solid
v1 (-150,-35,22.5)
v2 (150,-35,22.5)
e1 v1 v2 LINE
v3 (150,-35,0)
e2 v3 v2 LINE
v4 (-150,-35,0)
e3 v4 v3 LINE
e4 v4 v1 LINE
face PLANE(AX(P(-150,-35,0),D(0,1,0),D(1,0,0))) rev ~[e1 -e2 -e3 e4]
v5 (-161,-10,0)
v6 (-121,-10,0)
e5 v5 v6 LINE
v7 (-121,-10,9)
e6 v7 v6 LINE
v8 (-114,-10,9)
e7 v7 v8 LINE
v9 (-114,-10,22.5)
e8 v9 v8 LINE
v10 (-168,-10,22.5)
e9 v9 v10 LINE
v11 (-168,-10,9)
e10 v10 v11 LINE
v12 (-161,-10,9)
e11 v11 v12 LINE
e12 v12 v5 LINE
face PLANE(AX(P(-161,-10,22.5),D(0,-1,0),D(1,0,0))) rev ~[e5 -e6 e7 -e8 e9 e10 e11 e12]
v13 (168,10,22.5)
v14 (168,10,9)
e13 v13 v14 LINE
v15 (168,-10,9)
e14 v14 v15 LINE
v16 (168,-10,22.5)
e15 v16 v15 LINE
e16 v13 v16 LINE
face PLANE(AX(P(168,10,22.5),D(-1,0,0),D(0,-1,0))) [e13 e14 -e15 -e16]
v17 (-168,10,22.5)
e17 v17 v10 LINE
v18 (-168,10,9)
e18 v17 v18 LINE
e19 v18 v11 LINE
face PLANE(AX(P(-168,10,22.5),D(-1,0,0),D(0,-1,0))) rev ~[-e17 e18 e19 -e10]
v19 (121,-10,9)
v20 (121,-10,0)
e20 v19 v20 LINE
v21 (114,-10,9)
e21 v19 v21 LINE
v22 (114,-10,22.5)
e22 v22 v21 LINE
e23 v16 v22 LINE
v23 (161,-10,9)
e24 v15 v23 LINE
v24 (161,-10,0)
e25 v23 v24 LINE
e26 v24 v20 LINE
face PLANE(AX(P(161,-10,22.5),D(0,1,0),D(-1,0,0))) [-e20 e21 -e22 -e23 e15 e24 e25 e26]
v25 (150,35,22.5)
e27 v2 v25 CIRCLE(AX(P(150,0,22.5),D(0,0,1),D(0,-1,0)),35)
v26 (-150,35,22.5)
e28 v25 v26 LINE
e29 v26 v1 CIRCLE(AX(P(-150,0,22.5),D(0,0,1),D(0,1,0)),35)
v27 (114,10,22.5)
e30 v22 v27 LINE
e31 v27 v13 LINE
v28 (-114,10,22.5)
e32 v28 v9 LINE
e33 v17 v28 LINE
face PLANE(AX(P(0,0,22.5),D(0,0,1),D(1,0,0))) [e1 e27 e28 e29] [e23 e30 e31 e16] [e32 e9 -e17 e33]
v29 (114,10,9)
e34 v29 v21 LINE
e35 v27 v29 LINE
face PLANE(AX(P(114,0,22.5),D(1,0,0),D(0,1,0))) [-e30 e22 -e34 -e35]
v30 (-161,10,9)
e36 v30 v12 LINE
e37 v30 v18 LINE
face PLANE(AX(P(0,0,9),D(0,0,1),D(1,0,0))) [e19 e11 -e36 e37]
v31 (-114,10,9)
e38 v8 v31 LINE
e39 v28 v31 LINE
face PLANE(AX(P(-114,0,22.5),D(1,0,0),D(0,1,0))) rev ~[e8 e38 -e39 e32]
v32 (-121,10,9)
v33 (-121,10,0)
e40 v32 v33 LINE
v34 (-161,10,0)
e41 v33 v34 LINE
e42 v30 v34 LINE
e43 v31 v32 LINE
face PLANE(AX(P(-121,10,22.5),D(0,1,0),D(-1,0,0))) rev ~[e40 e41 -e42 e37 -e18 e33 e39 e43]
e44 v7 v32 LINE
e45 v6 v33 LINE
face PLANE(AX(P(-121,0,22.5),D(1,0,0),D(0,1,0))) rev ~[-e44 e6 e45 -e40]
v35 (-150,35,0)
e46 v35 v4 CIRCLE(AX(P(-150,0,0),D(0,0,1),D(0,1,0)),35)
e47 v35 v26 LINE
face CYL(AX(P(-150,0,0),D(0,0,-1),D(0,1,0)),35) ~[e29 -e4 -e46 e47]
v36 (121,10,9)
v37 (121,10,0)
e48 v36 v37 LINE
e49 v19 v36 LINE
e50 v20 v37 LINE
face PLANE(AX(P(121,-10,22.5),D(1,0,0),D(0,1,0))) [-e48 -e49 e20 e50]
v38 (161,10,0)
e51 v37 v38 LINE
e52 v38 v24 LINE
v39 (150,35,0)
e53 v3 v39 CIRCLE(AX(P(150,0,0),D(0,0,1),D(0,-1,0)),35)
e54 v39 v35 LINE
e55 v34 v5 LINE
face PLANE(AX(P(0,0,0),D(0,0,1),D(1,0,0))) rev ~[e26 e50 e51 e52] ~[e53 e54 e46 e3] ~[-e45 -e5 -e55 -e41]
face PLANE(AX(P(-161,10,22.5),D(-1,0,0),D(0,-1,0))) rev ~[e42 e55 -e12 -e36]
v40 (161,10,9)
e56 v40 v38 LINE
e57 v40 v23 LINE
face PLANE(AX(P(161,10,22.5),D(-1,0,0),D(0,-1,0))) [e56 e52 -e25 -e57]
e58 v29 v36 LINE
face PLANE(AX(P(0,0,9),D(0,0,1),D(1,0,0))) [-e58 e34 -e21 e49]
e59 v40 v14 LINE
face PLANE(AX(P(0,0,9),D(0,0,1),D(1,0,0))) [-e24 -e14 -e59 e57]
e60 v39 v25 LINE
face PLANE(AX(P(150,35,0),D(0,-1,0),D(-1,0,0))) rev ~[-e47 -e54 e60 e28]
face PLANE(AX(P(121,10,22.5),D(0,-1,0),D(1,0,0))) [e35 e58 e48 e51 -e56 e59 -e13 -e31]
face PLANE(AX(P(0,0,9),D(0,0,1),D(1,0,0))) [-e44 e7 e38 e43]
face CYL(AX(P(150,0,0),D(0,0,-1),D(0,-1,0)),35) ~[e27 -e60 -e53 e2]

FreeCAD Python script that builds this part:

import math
import FreeCAD as App
import Part
import Sketcher
Q = App.Units.Quantity


def add_polygon(sketch, points):
    """Adds a closed chain of lines whose ends are joined by coincident constraints."""
    first, n = sketch.GeometryCount, len(points)
    for a, b in zip(points, points[1:] + points[:1]):
        sketch.addGeometry(Part.LineSegment(App.Vector(*a, 0), App.Vector(*b, 0)), False)
    for i in range(n):
        sketch.addConstraint(Sketcher.Constraint("Coincident", first + i, 2, first + (i + 1) % n, 1))

doc = App.newDocument("Part")
body = doc.addObject("PartDesign::Body", "Body")

# Sketch on XY plane
sketch1 = body.newObject("Sketcher::SketchObject", "Sketch")
sketch1.AttachmentSupport = (doc.getObject("XY_Plane"), [""])
sketch1.MapMode = "FlatFace"
sketch1.addGeometry([
    Part.ArcOfCircle(Part.Circle(App.Vector(-150, 0, 0), App.Vector(0, 0, 1), 35), math.radians(90), math.radians(270)),
    Part.LineSegment(App.Vector(-150, -35, 0), App.Vector(150, -35, 0)),
    Part.ArcOfCircle(Part.Circle(App.Vector(150, 0, 0), App.Vector(0, 0, 1), 35), math.radians(-90), math.radians(90)),
    Part.LineSegment(App.Vector(150, 35, 0), App.Vector(-150, 35, 0)),
], False)
sketch1.addConstraint([
    Sketcher.Constraint("Tangent", 0, 2, 1, 1),
    Sketcher.Constraint("Tangent", 1, 2, 2, 1),
    Sketcher.Constraint("Tangent", 2, 2, 3, 1),
    Sketcher.Constraint("Tangent", 3, 2, 0, 1),
    Sketcher.Constraint("Horizontal", 1),
    Sketcher.Constraint("Horizontal", 3),
    Sketcher.Constraint("Symmetric", 0, 3, 2, 3, -1, 1),
    Sketcher.Constraint("Radius", 0, Q("35 mm")),
    Sketcher.Constraint("DistanceX", 0, 3, -1, 1, Q("150 mm")),
])
pad1 = body.newObject("PartDesign::Pad", "Pad")
pad1.Profile = sketch1
pad1.Length = 22.5

# Sketch on XY plane
sketch2 = body.newObject("Sketcher::SketchObject", "Sketch001")
sketch2.AttachmentSupport = (doc.getObject("XY_Plane"), [""])
sketch2.MapMode = "FlatFace"
sketch2.AttachmentOffset = App.Placement(App.Vector(0, 0, 22.5), App.Rotation())
add_polygon(sketch2, [(161, 10), (121, 10), (121, -10), (161, -10)])  # lines 0-3
add_polygon(sketch2, [(-121, -10), (-121, 10), (-161, 10), (-161, -10)])  # lines 4-7
sketch2.addConstraint([
    Sketcher.Constraint("Horizontal", 0),
    Sketcher.Constraint("Vertical", 1),
    Sketcher.Constraint("Horizontal", 2),
    Sketcher.Constraint("Vertical", 3),
    Sketcher.Constraint("Vertical", 4),
    Sketcher.Constraint("Horizontal", 5),
    Sketcher.Constraint("Vertical", 6),
    Sketcher.Constraint("Horizontal", 7),
    Sketcher.Constraint("Symmetric", 1, 2, 4, 2, -1, 1),
    Sketcher.Constraint("Symmetric", 3, 2, 6, 2, -1, 1),
    Sketcher.Constraint("Horizontal", 3, 2, 4, 2),
    Sketcher.Constraint("DistanceX", 0, 2, 0, 1, Q("40 mm")),
    Sketcher.Constraint("DistanceY", 1, 2, 1, 1, Q("20 mm")),
    Sketcher.Constraint("DistanceX", -1, 1, 0, 2, Q("121 mm")),
])
pocket1 = body.newObject("PartDesign::Pocket", "Pocket")
pocket1.Profile = sketch2
pocket1.Type = "ThroughAll"

# Sketch on XY plane
sketch3 = body.newObject("Sketcher::SketchObject", "Sketch002")
sketch3.AttachmentSupport = (doc.getObject("XY_Plane"), [""])
sketch3.MapMode = "FlatFace"
sketch3.AttachmentOffset = App.Placement(App.Vector(0, 0, 22.5), App.Rotation())
add_polygon(sketch3, [(121, 10), (114, 10), (114, -10), (121, -10)])  # lines 0-3
add_polygon(sketch3, [(168, 10), (161, 10), (161, -10), (168, -10)])  # lines 4-7
add_polygon(sketch3, [(-114, 10), (-121, 10), (-121, -10), (-114, -10)])  # lines 8-11
add_polygon(sketch3, [(-161, -10), (-161, 10), (-168, 10), (-168, -10)])  # lines 12-15
sketch3.addConstraint([
    Sketcher.Constraint("Horizontal", 0),
    Sketcher.Constraint("Vertical", 1),
    Sketcher.Constraint("Horizontal", 2),
    Sketcher.Constraint("Vertical", 3),
    Sketcher.Constraint("Horizontal", 4),
    Sketcher.Constraint("Vertical", 5),
    Sketcher.Constraint("Horizontal", 6),
    Sketcher.Constraint("Vertical", 7),
    Sketcher.Constraint("Horizontal", 8),
    Sketcher.Constraint("Vertical", 9),
    Sketcher.Constraint("Horizontal", 10),
    Sketcher.Constraint("Vertical", 11),
    Sketcher.Constraint("Vertical", 12),
    Sketcher.Constraint("Horizontal", 13),
    Sketcher.Constraint("Vertical", 14),
    Sketcher.Constraint("Horizontal", 15),
    Sketcher.Constraint("Symmetric", 2, 2, 8, 2, -1, 1),
    Sketcher.Constraint("Symmetric", 0, 2, 10, 2, -1, 1),
    Sketcher.Constraint("Symmetric", 5, 2, 12, 2, -1, 1),
    Sketcher.Constraint("Symmetric", 7, 2, 14, 2, -1, 1),
    Sketcher.Constraint("Horizontal", 3, 2, 4, 2),
    Sketcher.Constraint("Horizontal", 2, 2, 5, 2),
    Sketcher.Constraint("Horizontal", 7, 2, 8, 2),
    Sketcher.Constraint("Equal", 2, 4),
    Sketcher.Constraint("DistanceX", 0, 2, 0, 1, Q("7 mm")),
    Sketcher.Constraint("DistanceY", 1, 2, 1, 1, Q("20 mm")),
    Sketcher.Constraint("DistanceX", 3, 2, 4, 2, Q("40 mm")),
    Sketcher.Constraint("DistanceX", -1, 1, 0, 2, Q("114 mm")),
])
pocket2 = body.newObject("PartDesign::Pocket", "Pocket001")
pocket2.Profile = sketch3
pocket2.Length = 13.5

doc.recompute()
